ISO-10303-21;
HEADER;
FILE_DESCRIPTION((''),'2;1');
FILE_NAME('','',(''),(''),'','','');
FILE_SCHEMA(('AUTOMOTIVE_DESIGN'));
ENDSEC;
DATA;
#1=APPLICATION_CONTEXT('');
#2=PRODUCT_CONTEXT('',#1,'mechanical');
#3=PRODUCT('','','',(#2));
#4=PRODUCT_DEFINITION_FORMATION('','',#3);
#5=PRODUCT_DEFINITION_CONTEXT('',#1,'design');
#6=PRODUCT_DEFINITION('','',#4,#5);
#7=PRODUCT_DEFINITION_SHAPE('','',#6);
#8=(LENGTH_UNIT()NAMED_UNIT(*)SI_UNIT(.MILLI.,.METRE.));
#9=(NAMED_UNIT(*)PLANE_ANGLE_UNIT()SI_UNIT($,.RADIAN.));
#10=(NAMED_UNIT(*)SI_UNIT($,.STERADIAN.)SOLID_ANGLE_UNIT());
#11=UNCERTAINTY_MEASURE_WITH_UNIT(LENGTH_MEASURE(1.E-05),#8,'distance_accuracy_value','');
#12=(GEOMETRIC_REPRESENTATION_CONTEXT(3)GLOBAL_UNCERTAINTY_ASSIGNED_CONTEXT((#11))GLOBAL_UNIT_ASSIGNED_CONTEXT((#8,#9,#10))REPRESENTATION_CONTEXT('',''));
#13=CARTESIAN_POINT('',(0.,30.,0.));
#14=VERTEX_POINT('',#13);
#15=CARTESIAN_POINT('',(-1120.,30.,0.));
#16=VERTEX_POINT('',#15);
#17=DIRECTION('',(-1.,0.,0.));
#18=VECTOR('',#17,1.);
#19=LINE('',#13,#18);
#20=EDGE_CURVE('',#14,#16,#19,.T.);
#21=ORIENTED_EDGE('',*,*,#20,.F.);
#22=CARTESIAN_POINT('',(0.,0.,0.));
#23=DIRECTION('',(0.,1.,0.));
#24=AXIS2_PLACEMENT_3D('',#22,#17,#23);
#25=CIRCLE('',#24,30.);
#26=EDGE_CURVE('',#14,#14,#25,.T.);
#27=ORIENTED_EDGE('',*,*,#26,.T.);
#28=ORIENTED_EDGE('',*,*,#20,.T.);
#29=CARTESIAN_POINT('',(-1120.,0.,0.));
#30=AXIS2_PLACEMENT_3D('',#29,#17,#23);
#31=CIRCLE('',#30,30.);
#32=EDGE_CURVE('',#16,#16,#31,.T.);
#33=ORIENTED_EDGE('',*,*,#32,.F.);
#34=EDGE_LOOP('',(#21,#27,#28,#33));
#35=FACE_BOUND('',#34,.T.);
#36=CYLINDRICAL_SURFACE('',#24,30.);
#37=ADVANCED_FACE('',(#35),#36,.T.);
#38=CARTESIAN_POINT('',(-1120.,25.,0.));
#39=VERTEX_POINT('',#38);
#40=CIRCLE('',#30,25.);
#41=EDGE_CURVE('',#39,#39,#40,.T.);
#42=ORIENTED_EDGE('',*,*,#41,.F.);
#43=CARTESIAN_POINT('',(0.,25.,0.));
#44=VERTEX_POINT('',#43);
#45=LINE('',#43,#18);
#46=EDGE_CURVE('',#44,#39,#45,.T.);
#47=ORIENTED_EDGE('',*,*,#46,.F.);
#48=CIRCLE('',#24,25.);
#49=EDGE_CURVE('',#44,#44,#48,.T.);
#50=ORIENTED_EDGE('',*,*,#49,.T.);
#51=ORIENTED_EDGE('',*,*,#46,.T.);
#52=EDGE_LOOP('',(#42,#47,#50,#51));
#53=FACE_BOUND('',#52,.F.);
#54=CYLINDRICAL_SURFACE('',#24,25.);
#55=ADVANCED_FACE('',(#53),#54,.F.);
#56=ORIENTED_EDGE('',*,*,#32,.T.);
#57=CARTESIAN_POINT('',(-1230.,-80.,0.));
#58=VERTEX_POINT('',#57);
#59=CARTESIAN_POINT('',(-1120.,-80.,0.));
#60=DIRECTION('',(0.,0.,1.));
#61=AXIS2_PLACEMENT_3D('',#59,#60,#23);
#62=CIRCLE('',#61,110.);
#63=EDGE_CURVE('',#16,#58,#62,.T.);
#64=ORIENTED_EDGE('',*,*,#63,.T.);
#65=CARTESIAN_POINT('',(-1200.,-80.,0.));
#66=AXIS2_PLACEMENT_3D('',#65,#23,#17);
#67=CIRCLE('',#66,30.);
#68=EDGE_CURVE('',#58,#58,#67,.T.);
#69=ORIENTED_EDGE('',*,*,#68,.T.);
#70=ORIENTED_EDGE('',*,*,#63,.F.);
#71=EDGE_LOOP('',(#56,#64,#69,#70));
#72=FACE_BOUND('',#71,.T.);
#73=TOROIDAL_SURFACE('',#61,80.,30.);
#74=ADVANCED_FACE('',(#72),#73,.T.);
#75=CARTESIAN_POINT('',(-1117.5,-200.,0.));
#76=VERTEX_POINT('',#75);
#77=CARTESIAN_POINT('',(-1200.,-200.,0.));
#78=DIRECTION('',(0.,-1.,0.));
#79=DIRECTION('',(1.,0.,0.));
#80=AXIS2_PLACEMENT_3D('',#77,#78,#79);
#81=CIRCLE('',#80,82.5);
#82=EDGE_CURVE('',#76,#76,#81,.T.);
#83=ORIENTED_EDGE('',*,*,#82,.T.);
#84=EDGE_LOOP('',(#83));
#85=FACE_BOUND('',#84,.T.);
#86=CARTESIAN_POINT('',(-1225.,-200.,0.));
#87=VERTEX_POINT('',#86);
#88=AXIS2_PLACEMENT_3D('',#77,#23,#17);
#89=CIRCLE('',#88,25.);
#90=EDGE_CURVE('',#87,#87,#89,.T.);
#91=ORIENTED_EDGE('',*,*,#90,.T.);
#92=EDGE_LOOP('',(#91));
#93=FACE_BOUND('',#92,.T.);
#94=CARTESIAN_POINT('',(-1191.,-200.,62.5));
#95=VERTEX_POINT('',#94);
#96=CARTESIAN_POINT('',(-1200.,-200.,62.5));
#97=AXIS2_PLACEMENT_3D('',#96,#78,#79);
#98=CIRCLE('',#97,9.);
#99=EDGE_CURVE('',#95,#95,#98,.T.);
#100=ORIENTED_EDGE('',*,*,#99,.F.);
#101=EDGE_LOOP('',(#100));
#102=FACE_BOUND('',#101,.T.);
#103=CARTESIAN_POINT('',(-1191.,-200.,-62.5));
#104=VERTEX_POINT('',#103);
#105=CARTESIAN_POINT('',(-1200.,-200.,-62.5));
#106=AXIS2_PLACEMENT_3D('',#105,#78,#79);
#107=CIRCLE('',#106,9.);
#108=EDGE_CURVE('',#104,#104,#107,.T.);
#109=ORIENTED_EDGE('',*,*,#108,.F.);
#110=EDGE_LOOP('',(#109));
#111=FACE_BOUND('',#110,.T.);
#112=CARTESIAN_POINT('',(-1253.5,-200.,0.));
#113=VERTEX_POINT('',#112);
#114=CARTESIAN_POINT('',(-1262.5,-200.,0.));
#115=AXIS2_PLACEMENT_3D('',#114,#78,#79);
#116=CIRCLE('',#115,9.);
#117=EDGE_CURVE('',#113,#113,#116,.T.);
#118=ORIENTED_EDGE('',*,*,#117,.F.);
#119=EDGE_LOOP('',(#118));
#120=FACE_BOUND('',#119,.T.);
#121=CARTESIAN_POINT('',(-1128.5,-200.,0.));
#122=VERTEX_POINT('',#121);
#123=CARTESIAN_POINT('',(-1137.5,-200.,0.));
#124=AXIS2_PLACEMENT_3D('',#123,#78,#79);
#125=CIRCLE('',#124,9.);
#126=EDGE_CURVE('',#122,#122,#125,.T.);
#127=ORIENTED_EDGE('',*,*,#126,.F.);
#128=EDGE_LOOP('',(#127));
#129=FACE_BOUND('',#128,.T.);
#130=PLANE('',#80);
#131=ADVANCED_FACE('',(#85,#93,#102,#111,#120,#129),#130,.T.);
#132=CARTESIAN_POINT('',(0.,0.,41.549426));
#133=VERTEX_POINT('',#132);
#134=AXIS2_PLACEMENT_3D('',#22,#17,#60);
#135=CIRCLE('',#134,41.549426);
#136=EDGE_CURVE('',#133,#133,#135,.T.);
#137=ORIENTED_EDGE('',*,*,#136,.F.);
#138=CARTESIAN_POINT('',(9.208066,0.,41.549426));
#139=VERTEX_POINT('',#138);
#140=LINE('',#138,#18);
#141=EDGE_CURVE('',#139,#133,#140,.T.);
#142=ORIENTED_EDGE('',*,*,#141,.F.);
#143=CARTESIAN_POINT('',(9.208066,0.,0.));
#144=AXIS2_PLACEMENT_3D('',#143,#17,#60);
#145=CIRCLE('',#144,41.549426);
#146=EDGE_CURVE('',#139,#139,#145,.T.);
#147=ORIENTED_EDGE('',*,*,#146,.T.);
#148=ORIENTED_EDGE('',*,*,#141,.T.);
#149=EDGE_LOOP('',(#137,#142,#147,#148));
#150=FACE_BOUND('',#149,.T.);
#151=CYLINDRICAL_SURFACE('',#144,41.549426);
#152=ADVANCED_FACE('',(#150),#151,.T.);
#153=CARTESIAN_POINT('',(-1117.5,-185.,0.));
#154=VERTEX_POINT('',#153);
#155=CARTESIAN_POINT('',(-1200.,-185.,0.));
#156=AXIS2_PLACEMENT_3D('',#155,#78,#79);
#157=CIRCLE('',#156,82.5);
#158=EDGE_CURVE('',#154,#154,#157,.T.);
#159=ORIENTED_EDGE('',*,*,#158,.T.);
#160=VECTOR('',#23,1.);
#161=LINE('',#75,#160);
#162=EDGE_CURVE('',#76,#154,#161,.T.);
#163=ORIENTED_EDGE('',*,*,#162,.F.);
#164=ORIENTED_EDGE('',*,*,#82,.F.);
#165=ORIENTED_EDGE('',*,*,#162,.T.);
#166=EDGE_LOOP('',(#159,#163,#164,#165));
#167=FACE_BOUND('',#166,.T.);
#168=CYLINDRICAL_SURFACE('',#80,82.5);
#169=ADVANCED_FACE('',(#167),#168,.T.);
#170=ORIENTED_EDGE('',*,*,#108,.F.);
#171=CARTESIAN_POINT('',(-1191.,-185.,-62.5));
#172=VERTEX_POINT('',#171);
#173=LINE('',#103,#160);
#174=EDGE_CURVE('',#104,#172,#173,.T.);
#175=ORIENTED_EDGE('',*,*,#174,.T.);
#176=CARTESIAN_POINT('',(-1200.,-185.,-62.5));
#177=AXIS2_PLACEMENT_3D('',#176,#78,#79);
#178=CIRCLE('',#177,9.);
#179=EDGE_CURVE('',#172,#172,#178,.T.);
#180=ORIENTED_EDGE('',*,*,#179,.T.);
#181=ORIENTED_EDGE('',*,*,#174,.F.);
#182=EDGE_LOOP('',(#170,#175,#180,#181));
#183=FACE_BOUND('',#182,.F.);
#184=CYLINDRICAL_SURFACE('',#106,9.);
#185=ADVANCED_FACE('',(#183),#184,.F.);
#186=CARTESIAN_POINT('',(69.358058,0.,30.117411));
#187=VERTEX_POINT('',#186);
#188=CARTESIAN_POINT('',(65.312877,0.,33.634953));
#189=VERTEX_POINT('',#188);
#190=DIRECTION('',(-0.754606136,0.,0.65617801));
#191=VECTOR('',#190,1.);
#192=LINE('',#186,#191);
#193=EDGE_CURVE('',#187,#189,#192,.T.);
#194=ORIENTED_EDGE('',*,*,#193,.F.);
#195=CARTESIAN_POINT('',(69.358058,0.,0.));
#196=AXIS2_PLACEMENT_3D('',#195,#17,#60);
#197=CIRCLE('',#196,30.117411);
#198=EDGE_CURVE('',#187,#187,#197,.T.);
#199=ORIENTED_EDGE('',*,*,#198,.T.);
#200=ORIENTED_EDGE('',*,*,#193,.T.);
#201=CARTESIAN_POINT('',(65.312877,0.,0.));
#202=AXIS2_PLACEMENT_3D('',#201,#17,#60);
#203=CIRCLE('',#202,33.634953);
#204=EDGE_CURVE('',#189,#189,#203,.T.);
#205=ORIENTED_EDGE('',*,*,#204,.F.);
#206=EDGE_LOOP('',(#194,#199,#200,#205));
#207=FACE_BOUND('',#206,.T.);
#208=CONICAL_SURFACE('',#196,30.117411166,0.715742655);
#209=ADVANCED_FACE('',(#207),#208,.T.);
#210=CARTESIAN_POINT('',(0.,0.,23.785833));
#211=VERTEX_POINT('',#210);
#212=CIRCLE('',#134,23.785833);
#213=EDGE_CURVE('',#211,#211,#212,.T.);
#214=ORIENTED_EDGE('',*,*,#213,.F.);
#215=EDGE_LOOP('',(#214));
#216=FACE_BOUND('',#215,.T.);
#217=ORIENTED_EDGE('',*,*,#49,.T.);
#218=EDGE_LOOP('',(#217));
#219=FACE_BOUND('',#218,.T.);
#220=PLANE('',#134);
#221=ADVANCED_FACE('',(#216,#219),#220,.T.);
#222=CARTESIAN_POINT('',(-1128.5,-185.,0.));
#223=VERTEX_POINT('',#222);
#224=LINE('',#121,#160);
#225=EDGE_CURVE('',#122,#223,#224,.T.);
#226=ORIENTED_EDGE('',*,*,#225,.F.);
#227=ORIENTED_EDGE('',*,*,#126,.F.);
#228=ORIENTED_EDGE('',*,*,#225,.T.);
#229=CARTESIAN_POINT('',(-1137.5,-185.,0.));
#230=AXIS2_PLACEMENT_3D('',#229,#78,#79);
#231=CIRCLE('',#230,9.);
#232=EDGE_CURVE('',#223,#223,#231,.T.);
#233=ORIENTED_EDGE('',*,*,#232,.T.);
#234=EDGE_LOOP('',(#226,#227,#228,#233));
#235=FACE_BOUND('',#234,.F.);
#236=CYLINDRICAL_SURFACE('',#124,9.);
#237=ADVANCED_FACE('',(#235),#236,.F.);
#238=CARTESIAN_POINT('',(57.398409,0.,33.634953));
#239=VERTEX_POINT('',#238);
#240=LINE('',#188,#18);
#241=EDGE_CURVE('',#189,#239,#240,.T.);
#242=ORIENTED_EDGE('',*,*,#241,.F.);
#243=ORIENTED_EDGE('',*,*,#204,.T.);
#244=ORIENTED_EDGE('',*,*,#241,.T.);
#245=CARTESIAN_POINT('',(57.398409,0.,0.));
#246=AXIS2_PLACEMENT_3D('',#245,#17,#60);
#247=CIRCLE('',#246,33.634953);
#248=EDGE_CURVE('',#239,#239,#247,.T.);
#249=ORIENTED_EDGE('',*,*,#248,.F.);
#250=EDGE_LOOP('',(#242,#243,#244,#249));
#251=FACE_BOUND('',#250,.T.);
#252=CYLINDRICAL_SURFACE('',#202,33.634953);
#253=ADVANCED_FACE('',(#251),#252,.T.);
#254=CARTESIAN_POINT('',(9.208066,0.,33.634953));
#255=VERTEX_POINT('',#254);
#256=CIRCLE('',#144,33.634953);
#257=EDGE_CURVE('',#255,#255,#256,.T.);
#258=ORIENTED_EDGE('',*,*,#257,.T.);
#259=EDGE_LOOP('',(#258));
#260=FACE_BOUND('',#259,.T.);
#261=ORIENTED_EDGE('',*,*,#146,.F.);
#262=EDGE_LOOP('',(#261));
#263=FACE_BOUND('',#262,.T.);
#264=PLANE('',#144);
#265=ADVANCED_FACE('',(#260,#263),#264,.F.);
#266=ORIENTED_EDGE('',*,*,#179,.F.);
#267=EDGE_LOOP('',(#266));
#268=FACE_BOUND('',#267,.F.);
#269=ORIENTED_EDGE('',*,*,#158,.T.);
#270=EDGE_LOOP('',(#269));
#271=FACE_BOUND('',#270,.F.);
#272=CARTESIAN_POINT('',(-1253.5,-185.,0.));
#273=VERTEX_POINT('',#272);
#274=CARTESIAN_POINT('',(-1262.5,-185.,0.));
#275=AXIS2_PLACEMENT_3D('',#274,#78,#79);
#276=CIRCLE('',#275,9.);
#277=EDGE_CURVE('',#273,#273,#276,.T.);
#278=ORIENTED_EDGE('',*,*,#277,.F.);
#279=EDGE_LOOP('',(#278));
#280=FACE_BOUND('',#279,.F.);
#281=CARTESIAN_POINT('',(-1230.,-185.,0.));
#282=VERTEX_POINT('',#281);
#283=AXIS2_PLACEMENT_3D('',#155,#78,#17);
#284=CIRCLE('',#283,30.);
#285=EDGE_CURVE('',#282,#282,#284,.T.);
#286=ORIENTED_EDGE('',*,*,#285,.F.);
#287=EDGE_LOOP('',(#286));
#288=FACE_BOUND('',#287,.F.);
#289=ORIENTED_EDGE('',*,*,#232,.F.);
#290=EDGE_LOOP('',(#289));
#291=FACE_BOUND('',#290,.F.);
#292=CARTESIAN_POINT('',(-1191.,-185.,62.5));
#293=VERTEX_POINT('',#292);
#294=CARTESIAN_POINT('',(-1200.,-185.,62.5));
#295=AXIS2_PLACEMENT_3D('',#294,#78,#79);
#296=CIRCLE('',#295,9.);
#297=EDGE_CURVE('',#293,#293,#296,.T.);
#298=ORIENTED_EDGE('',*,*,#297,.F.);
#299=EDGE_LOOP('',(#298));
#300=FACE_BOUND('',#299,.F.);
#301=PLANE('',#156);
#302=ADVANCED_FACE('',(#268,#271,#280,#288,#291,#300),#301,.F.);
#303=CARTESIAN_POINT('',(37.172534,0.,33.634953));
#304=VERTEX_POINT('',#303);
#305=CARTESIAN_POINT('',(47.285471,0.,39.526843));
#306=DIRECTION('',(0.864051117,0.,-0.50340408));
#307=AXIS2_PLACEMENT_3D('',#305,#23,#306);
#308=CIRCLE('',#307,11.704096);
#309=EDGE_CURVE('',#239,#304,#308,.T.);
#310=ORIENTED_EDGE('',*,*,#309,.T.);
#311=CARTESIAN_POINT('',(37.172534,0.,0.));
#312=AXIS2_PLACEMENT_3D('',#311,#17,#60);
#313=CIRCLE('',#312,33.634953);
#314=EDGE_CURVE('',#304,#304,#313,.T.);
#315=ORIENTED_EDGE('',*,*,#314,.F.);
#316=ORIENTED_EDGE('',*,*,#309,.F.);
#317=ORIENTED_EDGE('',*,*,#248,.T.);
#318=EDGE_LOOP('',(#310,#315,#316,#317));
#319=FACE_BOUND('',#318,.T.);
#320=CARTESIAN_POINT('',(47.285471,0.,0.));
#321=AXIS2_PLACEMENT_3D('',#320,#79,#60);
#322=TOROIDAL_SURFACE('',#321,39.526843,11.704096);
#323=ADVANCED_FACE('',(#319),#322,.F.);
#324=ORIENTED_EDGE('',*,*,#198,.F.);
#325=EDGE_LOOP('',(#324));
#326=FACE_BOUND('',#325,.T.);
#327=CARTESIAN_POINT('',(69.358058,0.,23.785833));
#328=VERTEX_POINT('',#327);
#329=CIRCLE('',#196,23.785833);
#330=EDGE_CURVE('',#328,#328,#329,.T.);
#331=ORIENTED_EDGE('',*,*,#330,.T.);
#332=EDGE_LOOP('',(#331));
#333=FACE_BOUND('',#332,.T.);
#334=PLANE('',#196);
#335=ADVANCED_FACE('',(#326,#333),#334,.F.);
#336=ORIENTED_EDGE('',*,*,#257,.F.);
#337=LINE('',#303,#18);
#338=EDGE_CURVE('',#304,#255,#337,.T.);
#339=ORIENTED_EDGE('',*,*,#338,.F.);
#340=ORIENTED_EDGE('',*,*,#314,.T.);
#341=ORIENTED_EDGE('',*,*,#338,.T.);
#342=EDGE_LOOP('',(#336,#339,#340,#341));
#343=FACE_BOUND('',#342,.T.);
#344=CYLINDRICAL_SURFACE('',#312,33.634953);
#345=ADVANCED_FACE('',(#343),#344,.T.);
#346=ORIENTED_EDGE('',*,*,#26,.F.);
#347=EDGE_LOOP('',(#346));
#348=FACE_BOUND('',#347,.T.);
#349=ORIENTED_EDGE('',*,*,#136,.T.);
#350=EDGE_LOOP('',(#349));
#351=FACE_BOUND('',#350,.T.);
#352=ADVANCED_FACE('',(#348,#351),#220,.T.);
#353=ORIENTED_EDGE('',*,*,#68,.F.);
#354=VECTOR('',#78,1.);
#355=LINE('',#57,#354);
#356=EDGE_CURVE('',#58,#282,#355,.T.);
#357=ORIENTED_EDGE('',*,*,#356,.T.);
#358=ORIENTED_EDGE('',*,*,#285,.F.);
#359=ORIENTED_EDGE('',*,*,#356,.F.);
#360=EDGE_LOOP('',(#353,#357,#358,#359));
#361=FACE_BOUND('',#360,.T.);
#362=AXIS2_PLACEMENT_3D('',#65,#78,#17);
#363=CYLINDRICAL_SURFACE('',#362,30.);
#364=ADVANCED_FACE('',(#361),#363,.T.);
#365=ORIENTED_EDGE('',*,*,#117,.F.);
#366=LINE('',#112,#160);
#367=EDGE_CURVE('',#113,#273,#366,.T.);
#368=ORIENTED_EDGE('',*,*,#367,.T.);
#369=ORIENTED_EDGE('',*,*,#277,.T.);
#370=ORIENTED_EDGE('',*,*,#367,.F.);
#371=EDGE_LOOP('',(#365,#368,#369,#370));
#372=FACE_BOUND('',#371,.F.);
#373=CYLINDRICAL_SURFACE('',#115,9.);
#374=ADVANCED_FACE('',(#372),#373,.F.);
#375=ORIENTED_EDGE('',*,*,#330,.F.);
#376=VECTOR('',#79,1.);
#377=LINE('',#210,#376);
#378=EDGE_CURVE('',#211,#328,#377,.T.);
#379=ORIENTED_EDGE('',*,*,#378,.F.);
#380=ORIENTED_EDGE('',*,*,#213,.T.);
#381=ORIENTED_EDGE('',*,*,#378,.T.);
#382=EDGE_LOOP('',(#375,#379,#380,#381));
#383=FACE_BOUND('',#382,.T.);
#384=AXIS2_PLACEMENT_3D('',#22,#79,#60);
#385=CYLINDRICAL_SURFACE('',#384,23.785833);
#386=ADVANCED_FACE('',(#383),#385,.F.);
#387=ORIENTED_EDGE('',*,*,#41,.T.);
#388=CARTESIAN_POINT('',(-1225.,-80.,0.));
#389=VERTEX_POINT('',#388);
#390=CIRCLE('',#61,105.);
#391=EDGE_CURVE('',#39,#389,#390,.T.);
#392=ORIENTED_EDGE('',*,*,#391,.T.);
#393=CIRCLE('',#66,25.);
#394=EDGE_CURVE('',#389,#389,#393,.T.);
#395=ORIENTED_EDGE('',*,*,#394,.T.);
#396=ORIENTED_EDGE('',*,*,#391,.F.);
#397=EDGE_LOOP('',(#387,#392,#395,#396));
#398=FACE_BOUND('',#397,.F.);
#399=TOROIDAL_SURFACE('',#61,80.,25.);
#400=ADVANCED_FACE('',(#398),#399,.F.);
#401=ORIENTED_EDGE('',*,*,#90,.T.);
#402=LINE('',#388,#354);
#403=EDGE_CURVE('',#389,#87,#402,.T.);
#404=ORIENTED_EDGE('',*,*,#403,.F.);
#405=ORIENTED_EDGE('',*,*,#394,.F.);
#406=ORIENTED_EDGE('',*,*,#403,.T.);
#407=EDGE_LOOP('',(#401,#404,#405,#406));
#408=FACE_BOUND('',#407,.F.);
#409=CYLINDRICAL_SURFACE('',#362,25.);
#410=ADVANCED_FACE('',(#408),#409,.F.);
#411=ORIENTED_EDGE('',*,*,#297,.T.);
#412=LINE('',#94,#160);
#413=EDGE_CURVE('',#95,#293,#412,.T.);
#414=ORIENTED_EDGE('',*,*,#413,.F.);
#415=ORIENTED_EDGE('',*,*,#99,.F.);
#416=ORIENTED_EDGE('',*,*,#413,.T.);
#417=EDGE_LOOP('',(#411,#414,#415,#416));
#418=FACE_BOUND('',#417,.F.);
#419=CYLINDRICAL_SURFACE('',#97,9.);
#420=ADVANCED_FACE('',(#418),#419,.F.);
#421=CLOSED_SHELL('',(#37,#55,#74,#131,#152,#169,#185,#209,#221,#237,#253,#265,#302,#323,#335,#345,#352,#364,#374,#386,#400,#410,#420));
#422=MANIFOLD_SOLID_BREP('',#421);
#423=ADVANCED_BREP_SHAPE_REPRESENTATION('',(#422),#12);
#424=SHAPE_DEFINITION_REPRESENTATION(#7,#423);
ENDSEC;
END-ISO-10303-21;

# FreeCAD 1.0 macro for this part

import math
import FreeCAD as App
import Part
import Sketcher

V = App.Vector

doc = App.newDocument("Part")
body = doc.addObject("PartDesign::Body", "Body")

# Sketch on YZ plane
sketch1 = body.newObject("Sketcher::SketchObject", "Sketch")
sketch1.AttachmentSupport = (doc.getObject("YZ_Plane"), [""])
sketch1.MapMode = "FlatFace"
sketch1.addGeometry(Part.Circle(V(0, 0, 0), V(0, 0, 1), 30), False)
sketch1.addGeometry(Part.Circle(V(0, 0, 0), V(0, 0, 1), 25), False)
sketch1.addConstraint(Sketcher.Constraint("Coincident", 0, 3, -1, 1))
sketch1.addConstraint(Sketcher.Constraint("Coincident", 1, 3, -1, 1))
sketch1.addConstraint(Sketcher.Constraint("Diameter", 0, 60.0))
sketch1.addConstraint(Sketcher.Constraint("Diameter", 1, 50.0))

# Sketch on XY plane
sketch2 = body.newObject("Sketcher::SketchObject", "Sketch001")
sketch2.AttachmentSupport = (doc.getObject("XY_Plane"), [""])
sketch2.MapMode = "FlatFace"
sketch2.addGeometry(Part.LineSegment(V(0, 0, 0), V(-1120, 0, 0)), False)
sketch2.addGeometry(Part.ArcOfCircle(Part.Circle(V(-1120, -80, 0), V(0, 0, 1), 80), math.radians(90), math.radians(180)), False)
sketch2.addGeometry(Part.LineSegment(V(-1200, -80, 0), V(-1200, -200, 0)), False)
sketch2.addConstraint(Sketcher.Constraint("Tangent", 0, 2, 1, 1))
sketch2.addConstraint(Sketcher.Constraint("Tangent", 1, 2, 2, 1))
sketch2.addConstraint(Sketcher.Constraint("Horizontal", 0))
sketch2.addConstraint(Sketcher.Constraint("Vertical", 2))
sketch2.addConstraint(Sketcher.Constraint("Coincident", 0, 1, -1, 1))
sketch2.addConstraint(Sketcher.Constraint("Radius", 1, 80.0))
sketch2.addConstraint(Sketcher.Constraint("DistanceX", 0, 2, 0, 1, 1120.0))
sketch2.addConstraint(Sketcher.Constraint("DistanceY", 2, 2, 2, 1, 120.0))
doc.recompute()

additivepipe = body.newObject("PartDesign::AdditivePipe", "AdditivePipe")
additivepipe.Profile = sketch1
additivepipe.Spine = (sketch2, ["Edge1", "Edge2", "Edge3"])

# Sketch on XZ plane
sketch3 = body.newObject("Sketcher::SketchObject", "Sketch002")
sketch3.AttachmentSupport = (doc.getObject("XZ_Plane"), [""])
sketch3.MapMode = "FlatFace"
sketch3.AttachmentOffset = App.Placement(V(0, 0, 200), App.Rotation())
sketch3.addGeometry(Part.Circle(V(-1200, 0, 0), V(0, 0, 1), 82), False)
sketch3.addGeometry(Part.Circle(V(-1200, -62, 0), V(0, 0, 1), 9), False)
sketch3.addGeometry(Part.Circle(V(-1262, 0, 0), V(0, 0, 1), 9), False)
sketch3.addGeometry(Part.Circle(V(-1200, 0, 0), V(0, 0, 1), 25), False)
sketch3.addGeometry(Part.Circle(V(-1138, 0, 0), V(0, 0, 1), 9), False)
sketch3.addGeometry(Part.Circle(V(-1200, 62, 0), V(0, 0, 1), 9), False)
sketch3.addConstraint(Sketcher.Constraint("Coincident", 3, 3, 0, 3))
sketch3.addConstraint(Sketcher.Constraint("Equal", 1, 2))
sketch3.addConstraint(Sketcher.Constraint("Equal", 2, 4))
sketch3.addConstraint(Sketcher.Constraint("Equal", 4, 5))
sketch3.addConstraint(Sketcher.Constraint("Symmetric", 1, 3, 5, 3, -1))
sketch3.addConstraint(Sketcher.Constraint("PointOnObject", 0, 3, -1))
sketch3.addConstraint(Sketcher.Constraint("PointOnObject", 2, 3, -1))
sketch3.addConstraint(Sketcher.Constraint("PointOnObject", 4, 3, -1))
sketch3.addConstraint(Sketcher.Constraint("Vertical", 0, 3, 1, 3))
sketch3.addConstraint(Sketcher.Constraint("Diameter", 0, 165.0))
sketch3.addConstraint(Sketcher.Constraint("Diameter", 1, 18.0))
sketch3.addConstraint(Sketcher.Constraint("Diameter", 3, 50.0))
sketch3.addConstraint(Sketcher.Constraint("DistanceX", 0, 3, -1, 1, 1200.0))
sketch3.addConstraint(Sketcher.Constraint("DistanceX", 2, 3, 4, 3, 125.0))
sketch3.addConstraint(Sketcher.Constraint("DistanceY", 1, 3, 5, 3, 125.0))
sketch3.addConstraint(Sketcher.Constraint("DistanceX", 2, 3, -1, 1, 1262.5))
pad1 = body.newObject("PartDesign::Pad", "Pad")
pad1.Profile = sketch3
pad1.Length = 15
pad1.Reversed = True

# Sketch on XZ plane
sketch4 = body.newObject("Sketcher::SketchObject", "Sketch003")
sketch4.AttachmentSupport = (doc.getObject("XZ_Plane"), [""])
sketch4.MapMode = "FlatFace"
sketch4.addGeometry(Part.LineSegment(V(0, 24, 0), V(69, 24, 0)), False)
sketch4.addGeometry(Part.LineSegment(V(69, 24, 0), V(69, 30, 0)), False)
sketch4.addGeometry(Part.LineSegment(V(69, 30, 0), V(65, 34, 0)), False)
sketch4.addGeometry(Part.LineSegment(V(65, 34, 0), V(57, 34, 0)), False)
sketch4.addGeometry(Part.ArcOfCircle(Part.Circle(V(47, 40, 0), V(0, 0, 1), 12), math.radians(-150), math.radians(-30)), False)
sketch4.addGeometry(Part.LineSegment(V(37, 34, 0), V(9, 34, 0)), False)
sketch4.addGeometry(Part.LineSegment(V(9, 34, 0), V(9, 42, 0)), False)
sketch4.addGeometry(Part.LineSegment(V(9, 42, 0), V(0, 42, 0)), False)
sketch4.addGeometry(Part.LineSegment(V(0, 42, 0), V(0, 24, 0)), False)
sketch4.addConstraint(Sketcher.Constraint("Coincident", 0, 2, 1, 1))
sketch4.addConstraint(Sketcher.Constraint("Coincident", 1, 2, 2, 1))
sketch4.addConstraint(Sketcher.Constraint("Coincident", 2, 2, 3, 1))
sketch4.addConstraint(Sketcher.Constraint("Coincident", 3, 2, 4, 2))
sketch4.addConstraint(Sketcher.Constraint("Coincident", 4, 1, 5, 1))
sketch4.addConstraint(Sketcher.Constraint("Coincident", 5, 2, 6, 1))
sketch4.addConstraint(Sketcher.Constraint("Coincident", 6, 2, 7, 1))
sketch4.addConstraint(Sketcher.Constraint("Coincident", 7, 2, 8, 1))
sketch4.addConstraint(Sketcher.Constraint("Coincident", 8, 2, 0, 1))
sketch4.addConstraint(Sketcher.Constraint("Horizontal", 0))
sketch4.addConstraint(Sketcher.Constraint("Vertical", 1))
sketch4.addConstraint(Sketcher.Constraint("Horizontal", 3))
sketch4.addConstraint(Sketcher.Constraint("Horizontal", 5))
sketch4.addConstraint(Sketcher.Constraint("Vertical", 6))
sketch4.addConstraint(Sketcher.Constraint("Horizontal", 7))
sketch4.addConstraint(Sketcher.Constraint("Vertical", 8))
sketch4.addConstraint(Sketcher.Constraint("PointOnObject", 7, 2, -2))
sketch4.addConstraint(Sketcher.Constraint("Horizontal", 3, 2, 4, 1))
sketch4.addConstraint(Sketcher.Constraint("Radius", 4, 11.704096))
sketch4.addConstraint(Sketcher.Constraint("DistanceX", 0, 1, 0, 2, 69.358058))
sketch4.addConstraint(Sketcher.Constraint("DistanceX", 3, 2, 3, 1, 7.914469))
sketch4.addConstraint(Sketcher.Constraint("DistanceX", 5, 2, 5, 1, 27.964467))
sketch4.addConstraint(Sketcher.Constraint("DistanceX", 7, 2, 7, 1, 9.208066))
sketch4.addConstraint(Sketcher.Constraint("DistanceY", 1, 1, 1, 2, 6.331578))
sketch4.addConstraint(Sketcher.Constraint("DistanceY", 6, 1, 6, 2, 7.914472))
sketch4.addConstraint(Sketcher.Constraint("DistanceY", 8, 2, 8, 1, 17.763592))
sketch4.addConstraint(Sketcher.Constraint("DistanceX", -1, 1, 4, 3, 47.285471))
sketch4.addConstraint(Sketcher.Constraint("DistanceY", -1, 1, 1, 2, 30.117411))
revolution = body.newObject("PartDesign::Revolution", "Revolution")
revolution.Profile = sketch4
revolution.ReferenceAxis = (sketch4, ["H_Axis"])
revolution.Angle = 360

doc.recompute()
